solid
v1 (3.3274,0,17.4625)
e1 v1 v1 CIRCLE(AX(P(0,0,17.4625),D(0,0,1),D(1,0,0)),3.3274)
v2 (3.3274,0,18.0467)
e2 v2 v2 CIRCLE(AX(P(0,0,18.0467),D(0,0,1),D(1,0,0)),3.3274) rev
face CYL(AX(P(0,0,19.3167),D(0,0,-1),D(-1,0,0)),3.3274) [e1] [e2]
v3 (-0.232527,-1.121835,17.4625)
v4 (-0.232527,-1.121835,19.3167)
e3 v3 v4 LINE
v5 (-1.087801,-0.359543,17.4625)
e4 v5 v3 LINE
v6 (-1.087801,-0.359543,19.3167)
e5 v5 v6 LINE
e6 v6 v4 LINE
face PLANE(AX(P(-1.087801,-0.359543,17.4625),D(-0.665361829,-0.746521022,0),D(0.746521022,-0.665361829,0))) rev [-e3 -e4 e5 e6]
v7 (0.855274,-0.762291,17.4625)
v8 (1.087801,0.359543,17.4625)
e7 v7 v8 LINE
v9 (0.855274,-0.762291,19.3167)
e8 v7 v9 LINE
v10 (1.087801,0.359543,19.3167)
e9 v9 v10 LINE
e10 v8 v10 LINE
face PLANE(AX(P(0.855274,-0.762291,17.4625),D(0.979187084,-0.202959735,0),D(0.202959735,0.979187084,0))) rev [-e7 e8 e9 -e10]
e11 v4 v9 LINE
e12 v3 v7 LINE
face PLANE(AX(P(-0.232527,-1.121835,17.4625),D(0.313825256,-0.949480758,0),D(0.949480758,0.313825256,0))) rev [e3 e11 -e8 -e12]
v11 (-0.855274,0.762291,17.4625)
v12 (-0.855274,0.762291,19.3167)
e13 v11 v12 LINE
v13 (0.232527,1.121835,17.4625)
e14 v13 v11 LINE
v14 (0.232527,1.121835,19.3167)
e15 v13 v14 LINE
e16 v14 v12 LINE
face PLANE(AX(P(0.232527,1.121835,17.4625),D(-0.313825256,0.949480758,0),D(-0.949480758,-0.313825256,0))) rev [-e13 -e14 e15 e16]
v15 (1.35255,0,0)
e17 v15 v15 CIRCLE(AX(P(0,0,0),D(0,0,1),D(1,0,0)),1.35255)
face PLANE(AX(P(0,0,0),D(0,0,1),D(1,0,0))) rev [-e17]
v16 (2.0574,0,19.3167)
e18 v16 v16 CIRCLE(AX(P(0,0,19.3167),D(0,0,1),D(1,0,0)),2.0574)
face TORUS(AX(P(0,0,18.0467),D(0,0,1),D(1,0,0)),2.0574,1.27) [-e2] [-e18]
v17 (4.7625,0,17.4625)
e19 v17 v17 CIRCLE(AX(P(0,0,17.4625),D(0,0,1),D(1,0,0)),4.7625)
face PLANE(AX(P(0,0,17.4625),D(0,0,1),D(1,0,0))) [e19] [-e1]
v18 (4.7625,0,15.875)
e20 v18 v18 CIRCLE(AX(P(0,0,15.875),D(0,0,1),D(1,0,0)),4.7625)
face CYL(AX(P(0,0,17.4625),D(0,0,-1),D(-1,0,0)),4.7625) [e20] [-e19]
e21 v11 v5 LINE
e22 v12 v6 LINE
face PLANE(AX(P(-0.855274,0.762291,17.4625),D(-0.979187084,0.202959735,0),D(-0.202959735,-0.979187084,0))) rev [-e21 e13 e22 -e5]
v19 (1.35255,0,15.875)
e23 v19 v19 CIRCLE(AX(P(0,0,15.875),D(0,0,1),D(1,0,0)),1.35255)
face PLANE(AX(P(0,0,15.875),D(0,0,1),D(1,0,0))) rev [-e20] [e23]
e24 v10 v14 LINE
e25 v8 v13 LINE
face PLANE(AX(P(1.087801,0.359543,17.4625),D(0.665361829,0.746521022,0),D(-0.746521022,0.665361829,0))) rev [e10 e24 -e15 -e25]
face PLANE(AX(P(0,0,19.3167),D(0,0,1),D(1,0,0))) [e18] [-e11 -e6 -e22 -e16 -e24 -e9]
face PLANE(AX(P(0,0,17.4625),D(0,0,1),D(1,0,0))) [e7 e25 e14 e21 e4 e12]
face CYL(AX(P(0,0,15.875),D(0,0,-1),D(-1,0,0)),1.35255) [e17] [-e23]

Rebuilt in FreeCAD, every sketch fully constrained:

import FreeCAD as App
import Part
import Sketcher
from FreeCAD import Vector
Q = App.Units.Quantity


def edges_at(feature, points):
    """Names of the edges that pass closest to the given points."""
    edges = feature.Shape.Edges
    near = lambda p: min(range(len(edges)), key=lambda i: edges[i].distToShape(Part.Vertex(*p))[0])
    return sorted({f"Edge{near(p) + 1}" for p in points})


def add_polygon(sketch, points):
    """Adds a closed chain of lines whose ends are joined by coincident constraints."""
    first, n = sketch.GeometryCount, len(points)
    for a, b in zip(points, points[1:] + points[:1]):
        sketch.addGeometry(Part.LineSegment(App.Vector(*a, 0), App.Vector(*b, 0)), False)
    for i in range(n):
        sketch.addConstraint(Sketcher.Constraint("Coincident", first + i, 2, first + (i + 1) % n, 1))

doc = App.newDocument("Part")
params = doc.addObject("Spreadsheet::Sheet", "Params")
for row, (alias, value) in enumerate([
    ("pad1_length", "0.625 in"),
    ("sketch2_diameter", "0.375 in"),
    ("pad2_length", "0.0625 in"),
    ("sketch3_diameter", "0.262 in"),
    ("pad3_length", "0.073 in"),
    ("fillet_radius", "0.05 in"),
    ("pocket1_length", "0.073 in"),
], start=1):
    params.set(f"A{row}", alias)
    params.set(f"B{row}", "=" + value)
    params.setAlias(f"B{row}", alias)

body = doc.addObject("PartDesign::Body", "Body")

# Sketch on XY plane
sketch1 = body.newObject("Sketcher::SketchObject", "Sketch")
sketch1.AttachmentSupport = (doc.getObject("XY_Plane"), [""])
sketch1.MapMode = "FlatFace"
sketch1.addGeometry(Part.Circle(Vector(0, 0, 0), Vector(0, 0, 1), 1.35255), False)
sketch1.addConstraint([
    Sketcher.Constraint("Coincident", 0, 3, -1, 1),
    Sketcher.Constraint("Diameter", 0, Q("0.1065 in")),
])
pad1 = body.newObject("PartDesign::Pad", "Pad")
pad1.Profile = sketch1
pad1.setExpression("Length", "Params.pad1_length")

# Sketch on XY plane
sketch2 = body.newObject("Sketcher::SketchObject", "Sketch001")
sketch2.AttachmentSupport = (doc.getObject("XY_Plane"), [""])
sketch2.MapMode = "FlatFace"
sketch2.AttachmentOffset = App.Placement(Vector(0, 0, 0.625 * 25.4), App.Rotation())
sketch2.addGeometry(Part.Circle(Vector(0, 0, 0), Vector(0, 0, 1), 4.7625), False)
sketch2.addConstraint([
    Sketcher.Constraint("Coincident", 0, 3, -1, 1),
    Sketcher.Constraint("Diameter", 0, Q("0.375 in")),
])
sketch2.setExpression("Constraints[1]", "Params.sketch2_diameter")
pad2 = body.newObject("PartDesign::Pad", "Pad001")
pad2.Profile = sketch2
pad2.setExpression("Length", "Params.pad2_length")

# Sketch on XY plane
sketch3 = body.newObject("Sketcher::SketchObject", "Sketch002")
sketch3.AttachmentSupport = (doc.getObject("XY_Plane"), [""])
sketch3.MapMode = "FlatFace"
sketch3.AttachmentOffset = App.Placement(Vector(0, 0, 0.6875 * 25.4), App.Rotation())
sketch3.addGeometry(Part.Circle(Vector(0, 0, 0), Vector(0, 0, 1), 3.3274), False)
sketch3.addConstraint([
    Sketcher.Constraint("Coincident", 0, 3, -1, 1),
    Sketcher.Constraint("Diameter", 0, Q("0.262 in")),
])
sketch3.setExpression("Constraints[1]", "Params.sketch3_diameter")
pad3 = body.newObject("PartDesign::Pad", "Pad002")
pad3.Profile = sketch3
pad3.setExpression("Length", "Params.pad3_length")
doc.recompute()

fillet = body.newObject("PartDesign::Fillet", "Fillet")
fillet.Base = (pad3, edges_at(pad3, [(-3.327, 0, 19.317)]))
fillet.setExpression("Radius", "Params.fillet_radius")

# Sketch on XY plane
sketch4 = body.newObject("Sketcher::SketchObject", "Sketch003")
sketch4.AttachmentSupport = (doc.getObject("XY_Plane"), [""])
sketch4.MapMode = "FlatFace"
sketch4.AttachmentOffset = App.Placement(Vector(0, 0, 0.7605 * 25.4), App.Rotation())
add_polygon(sketch4, [(1.087801, 0.359543), (0.232527, 1.121835), (-0.855274, 0.762291), (-1.087801, -0.359543), (-0.232527, -1.121835), (0.855274, -0.762291)])  # lines 0-5
sketch4.addConstraint([
    Sketcher.Constraint("Symmetric", 0, 2, 3, 2, -1, 1),
    Sketcher.Constraint("Symmetric", 1, 2, 4, 2, -1, 1),
    Sketcher.Constraint("Symmetric", 2, 2, 5, 2, -1, 1),
    Sketcher.Constraint("Equal", 0, 1),
    Sketcher.Constraint("Equal", 1, 2),
    Sketcher.Constraint("DistanceX", 2, 2, -1, 1, 1.087801),
    Sketcher.Constraint("DistanceX", 1, 2, 0, 2, 1.087801),
    Sketcher.Constraint("Distance", 0, 1.145679),
    Sketcher.Constraint("DistanceY", -1, 1, 1, 2, 0.762291),
])
pocket1 = body.newObject("PartDesign::Pocket", "Pocket")
pocket1.Profile = sketch4
pocket1.setExpression("Length", "Params.pocket1_length")

doc.recompute()
